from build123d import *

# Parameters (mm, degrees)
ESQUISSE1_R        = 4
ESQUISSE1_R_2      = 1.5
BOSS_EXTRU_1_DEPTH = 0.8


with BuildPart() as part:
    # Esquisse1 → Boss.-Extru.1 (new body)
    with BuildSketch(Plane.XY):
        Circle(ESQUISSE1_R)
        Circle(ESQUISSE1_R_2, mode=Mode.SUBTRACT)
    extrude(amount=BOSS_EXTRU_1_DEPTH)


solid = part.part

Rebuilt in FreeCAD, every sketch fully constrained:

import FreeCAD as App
import Part
import Sketcher

doc = App.newDocument("Part")
body = doc.addObject("PartDesign::Body", "Body")

# Sketch on XY plane
sketch1 = body.newObject("Sketcher::SketchObject", "Sketch")
sketch1.AttachmentSupport = (doc.getObject("XY_Plane"), [""])
sketch1.MapMode = "FlatFace"
sketch1.addGeometry([
    Part.Circle(App.Vector(0, 0, 0), App.Vector(0, 0, 1), 4),
    Part.Circle(App.Vector(0, 0, 0), App.Vector(0, 0, 1), 1.5),
], False)
sketch1.addConstraint([
    Sketcher.Constraint("Coincident", 0, 3, -1, 1),
    Sketcher.Constraint("Coincident", 1, 3, -1, 1),
    Sketcher.Constraint("Diameter", 0, 8.0),
    Sketcher.Constraint("Diameter", 1, 3.0),
])
pad1 = body.newObject("PartDesign::Pad", "Pad")
pad1.Profile = sketch1
pad1.Length = 0.8

doc.recompute()
